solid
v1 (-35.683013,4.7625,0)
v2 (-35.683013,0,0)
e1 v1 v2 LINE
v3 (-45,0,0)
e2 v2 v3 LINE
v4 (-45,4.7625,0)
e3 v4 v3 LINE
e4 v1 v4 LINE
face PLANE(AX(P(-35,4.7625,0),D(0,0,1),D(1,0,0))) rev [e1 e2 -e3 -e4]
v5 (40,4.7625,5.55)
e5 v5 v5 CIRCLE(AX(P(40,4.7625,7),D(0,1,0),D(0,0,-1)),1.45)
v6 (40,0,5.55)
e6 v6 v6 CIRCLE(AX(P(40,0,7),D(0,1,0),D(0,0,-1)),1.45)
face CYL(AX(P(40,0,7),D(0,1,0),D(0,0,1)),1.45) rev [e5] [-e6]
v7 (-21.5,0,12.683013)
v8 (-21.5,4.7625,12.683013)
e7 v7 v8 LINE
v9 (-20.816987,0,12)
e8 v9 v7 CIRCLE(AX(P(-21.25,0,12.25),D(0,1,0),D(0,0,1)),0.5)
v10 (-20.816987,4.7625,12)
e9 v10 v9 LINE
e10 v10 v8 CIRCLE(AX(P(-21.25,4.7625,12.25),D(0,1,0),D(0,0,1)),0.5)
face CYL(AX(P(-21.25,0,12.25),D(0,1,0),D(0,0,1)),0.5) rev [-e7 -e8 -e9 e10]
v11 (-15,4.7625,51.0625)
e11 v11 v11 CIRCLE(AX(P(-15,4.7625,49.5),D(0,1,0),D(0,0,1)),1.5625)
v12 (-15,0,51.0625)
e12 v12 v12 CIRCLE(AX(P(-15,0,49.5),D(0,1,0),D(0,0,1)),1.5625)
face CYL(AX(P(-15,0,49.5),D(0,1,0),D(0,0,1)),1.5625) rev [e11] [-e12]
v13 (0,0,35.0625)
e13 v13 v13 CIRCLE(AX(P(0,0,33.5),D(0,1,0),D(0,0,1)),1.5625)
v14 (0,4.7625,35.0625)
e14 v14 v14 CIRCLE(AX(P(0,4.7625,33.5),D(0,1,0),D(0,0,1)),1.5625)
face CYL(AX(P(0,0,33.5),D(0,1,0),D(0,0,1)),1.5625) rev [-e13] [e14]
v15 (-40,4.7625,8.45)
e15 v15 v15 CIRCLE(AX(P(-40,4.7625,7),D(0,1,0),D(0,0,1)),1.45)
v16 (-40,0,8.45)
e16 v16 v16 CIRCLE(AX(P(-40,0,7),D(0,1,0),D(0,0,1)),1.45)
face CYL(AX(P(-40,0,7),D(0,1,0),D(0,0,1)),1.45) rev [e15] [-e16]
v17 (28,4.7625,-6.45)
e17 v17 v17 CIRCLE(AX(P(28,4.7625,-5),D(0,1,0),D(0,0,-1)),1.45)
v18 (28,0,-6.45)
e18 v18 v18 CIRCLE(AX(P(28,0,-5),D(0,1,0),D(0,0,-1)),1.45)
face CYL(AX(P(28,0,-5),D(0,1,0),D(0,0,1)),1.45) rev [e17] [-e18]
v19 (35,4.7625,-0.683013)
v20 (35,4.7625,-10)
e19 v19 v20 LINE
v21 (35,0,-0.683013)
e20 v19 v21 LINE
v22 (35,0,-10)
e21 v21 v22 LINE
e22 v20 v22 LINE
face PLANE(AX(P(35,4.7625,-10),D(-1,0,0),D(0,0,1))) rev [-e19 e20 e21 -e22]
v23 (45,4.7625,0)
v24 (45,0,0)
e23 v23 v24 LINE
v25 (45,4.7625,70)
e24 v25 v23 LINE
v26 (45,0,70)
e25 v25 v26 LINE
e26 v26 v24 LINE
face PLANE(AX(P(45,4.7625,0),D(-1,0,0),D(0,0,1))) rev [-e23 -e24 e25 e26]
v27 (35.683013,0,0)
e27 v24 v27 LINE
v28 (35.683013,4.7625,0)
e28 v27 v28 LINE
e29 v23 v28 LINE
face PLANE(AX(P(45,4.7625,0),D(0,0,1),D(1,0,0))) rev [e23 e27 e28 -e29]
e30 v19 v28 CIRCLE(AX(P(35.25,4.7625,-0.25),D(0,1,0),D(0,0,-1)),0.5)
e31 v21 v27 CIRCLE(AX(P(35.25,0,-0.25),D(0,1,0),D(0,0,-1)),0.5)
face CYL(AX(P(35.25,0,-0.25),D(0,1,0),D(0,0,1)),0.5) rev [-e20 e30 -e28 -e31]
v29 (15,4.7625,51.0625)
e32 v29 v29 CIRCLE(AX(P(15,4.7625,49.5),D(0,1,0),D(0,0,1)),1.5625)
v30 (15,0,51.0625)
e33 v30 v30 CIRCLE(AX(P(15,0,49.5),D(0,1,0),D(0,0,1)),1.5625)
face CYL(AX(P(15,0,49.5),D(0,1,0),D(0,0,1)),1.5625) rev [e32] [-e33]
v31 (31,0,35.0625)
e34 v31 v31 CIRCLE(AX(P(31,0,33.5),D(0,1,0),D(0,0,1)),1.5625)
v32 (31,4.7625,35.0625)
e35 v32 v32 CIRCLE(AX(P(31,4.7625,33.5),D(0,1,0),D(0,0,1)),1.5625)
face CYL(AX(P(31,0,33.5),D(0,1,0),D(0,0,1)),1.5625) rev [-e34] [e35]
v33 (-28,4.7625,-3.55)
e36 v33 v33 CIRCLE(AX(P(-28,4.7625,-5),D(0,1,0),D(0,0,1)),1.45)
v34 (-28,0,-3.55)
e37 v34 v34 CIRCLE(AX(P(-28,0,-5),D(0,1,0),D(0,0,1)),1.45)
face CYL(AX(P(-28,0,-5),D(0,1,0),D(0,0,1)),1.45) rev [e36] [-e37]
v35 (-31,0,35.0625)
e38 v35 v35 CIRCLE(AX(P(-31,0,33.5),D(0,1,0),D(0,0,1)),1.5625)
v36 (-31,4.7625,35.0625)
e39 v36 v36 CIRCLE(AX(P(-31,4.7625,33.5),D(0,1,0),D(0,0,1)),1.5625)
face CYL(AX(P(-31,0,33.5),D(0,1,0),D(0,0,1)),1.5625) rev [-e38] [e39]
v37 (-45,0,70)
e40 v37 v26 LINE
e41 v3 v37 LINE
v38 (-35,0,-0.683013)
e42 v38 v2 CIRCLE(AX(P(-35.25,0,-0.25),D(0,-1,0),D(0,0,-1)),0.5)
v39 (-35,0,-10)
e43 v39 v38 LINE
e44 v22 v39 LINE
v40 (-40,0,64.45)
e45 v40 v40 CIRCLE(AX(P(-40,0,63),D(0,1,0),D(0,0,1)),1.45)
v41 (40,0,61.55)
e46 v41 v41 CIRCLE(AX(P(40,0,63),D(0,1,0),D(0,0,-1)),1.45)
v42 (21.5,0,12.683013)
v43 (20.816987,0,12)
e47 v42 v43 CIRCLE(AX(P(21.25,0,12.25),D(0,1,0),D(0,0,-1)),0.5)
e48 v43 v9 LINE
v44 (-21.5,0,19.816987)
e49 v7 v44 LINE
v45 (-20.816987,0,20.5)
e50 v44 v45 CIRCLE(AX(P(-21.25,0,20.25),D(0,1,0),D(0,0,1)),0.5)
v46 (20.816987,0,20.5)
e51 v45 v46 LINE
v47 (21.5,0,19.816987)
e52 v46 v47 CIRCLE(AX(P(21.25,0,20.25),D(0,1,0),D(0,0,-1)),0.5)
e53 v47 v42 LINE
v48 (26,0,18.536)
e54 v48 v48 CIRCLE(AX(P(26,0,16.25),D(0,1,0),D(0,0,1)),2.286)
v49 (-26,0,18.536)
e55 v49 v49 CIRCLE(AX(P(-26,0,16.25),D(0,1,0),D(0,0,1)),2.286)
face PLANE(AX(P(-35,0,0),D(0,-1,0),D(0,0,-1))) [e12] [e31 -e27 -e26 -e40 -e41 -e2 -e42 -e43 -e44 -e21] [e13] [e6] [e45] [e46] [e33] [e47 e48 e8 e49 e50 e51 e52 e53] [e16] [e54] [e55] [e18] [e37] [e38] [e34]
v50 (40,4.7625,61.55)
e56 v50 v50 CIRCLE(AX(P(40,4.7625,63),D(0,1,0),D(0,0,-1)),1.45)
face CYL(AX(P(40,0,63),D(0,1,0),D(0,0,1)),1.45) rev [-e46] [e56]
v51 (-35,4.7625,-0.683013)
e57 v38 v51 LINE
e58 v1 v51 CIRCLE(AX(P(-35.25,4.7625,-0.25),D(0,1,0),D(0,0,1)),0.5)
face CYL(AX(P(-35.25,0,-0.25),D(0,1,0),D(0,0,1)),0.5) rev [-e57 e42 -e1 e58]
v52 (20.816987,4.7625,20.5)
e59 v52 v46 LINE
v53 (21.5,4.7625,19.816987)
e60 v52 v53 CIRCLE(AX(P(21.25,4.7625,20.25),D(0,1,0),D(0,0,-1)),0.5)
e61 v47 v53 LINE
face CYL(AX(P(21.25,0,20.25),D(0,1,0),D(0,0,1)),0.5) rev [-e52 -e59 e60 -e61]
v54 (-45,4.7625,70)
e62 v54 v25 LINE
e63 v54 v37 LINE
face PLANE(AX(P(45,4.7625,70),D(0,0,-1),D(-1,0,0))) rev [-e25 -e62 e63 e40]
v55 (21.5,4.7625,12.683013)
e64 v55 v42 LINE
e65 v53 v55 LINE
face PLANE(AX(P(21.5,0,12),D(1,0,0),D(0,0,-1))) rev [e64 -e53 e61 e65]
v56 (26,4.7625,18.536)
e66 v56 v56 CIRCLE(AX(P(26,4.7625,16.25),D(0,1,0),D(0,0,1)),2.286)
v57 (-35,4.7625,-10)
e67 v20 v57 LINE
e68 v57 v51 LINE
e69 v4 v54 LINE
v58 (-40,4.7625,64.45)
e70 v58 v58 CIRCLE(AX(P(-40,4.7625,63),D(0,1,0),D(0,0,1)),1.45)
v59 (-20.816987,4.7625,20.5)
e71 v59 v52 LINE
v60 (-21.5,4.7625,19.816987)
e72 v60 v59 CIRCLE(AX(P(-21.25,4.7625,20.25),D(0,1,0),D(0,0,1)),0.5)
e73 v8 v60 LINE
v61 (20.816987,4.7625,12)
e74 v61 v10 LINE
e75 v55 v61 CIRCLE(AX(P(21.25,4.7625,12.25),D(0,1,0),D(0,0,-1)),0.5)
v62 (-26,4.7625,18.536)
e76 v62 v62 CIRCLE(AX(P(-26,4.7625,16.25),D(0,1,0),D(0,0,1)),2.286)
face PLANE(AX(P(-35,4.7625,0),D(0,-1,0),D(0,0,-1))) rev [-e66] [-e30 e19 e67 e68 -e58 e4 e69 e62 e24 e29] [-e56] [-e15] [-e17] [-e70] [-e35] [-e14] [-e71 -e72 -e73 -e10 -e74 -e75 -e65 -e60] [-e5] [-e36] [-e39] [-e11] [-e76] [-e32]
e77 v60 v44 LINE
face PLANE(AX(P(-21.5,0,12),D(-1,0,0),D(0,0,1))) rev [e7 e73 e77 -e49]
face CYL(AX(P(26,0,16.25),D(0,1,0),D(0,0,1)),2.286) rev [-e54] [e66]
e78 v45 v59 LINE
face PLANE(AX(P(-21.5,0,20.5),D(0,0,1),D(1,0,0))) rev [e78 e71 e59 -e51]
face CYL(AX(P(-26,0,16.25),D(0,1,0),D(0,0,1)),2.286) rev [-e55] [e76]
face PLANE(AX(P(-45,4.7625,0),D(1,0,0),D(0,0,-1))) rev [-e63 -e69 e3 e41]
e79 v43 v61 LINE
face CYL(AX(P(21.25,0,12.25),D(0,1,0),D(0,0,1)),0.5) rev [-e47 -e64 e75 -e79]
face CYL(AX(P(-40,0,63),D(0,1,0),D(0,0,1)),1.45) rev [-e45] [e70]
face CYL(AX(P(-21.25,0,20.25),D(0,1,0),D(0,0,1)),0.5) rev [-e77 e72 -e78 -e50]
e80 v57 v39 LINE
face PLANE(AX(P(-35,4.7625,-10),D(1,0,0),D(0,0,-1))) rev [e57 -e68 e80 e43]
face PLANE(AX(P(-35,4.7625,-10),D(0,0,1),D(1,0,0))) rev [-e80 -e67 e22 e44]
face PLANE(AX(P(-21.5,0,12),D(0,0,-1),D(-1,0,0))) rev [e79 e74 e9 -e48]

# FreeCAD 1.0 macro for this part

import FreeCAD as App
import Part
import Sketcher
from FreeCAD import Vector
Q = App.Units.Quantity

doc = App.newDocument("Part")
body = doc.addObject("PartDesign::Body", "Body")

# Sketch on XZ plane
sketch1 = doc.addObject("Sketcher::SketchObject", "Sketch")
body.addObject(sketch1)
sketch1.AttachmentSupport = (doc.XZ_Plane, [""])
sketch1.MapMode = "FlatFace"
sketch1.addGeometry(Part.LineSegment(Vector(-35, 0, 0), Vector(-45, 0, 0)), False)
sketch1.addGeometry(Part.LineSegment(Vector(-45, 0, 0), Vector(-45, 70, 0)), False)
sketch1.addGeometry(Part.LineSegment(Vector(-45, 70, 0), Vector(45, 70, 0)), False)
sketch1.addGeometry(Part.LineSegment(Vector(45, 70, 0), Vector(45, 0, 0)), False)
sketch1.addGeometry(Part.LineSegment(Vector(45, 0, 0), Vector(35, 0, 0)), False)
sketch1.addGeometry(Part.LineSegment(Vector(35, 0, 0), Vector(35, -10, 0)), False)
sketch1.addGeometry(Part.LineSegment(Vector(35, -10, 0), Vector(-35, -10, 0)), False)
sketch1.addGeometry(Part.LineSegment(Vector(-35, -10, 0), Vector(-35, 0, 0)), False)
sketch1.addConstraint(Sketcher.Constraint("Coincident", 0, 2, 1, 1))
sketch1.addConstraint(Sketcher.Constraint("Coincident", 1, 2, 2, 1))
sketch1.addConstraint(Sketcher.Constraint("Coincident", 2, 2, 3, 1))
sketch1.addConstraint(Sketcher.Constraint("Coincident", 3, 2, 4, 1))
sketch1.addConstraint(Sketcher.Constraint("Coincident", 4, 2, 5, 1))
sketch1.addConstraint(Sketcher.Constraint("Coincident", 5, 2, 6, 1))
sketch1.addConstraint(Sketcher.Constraint("Coincident", 6, 2, 7, 1))
sketch1.addConstraint(Sketcher.Constraint("Coincident", 7, 2, 0, 1))
sketch1.addConstraint(Sketcher.Constraint("Horizontal", 0))
sketch1.addConstraint(Sketcher.Constraint("Vertical", 1))
sketch1.addConstraint(Sketcher.Constraint("Horizontal", 2))
sketch1.addConstraint(Sketcher.Constraint("Vertical", 3))
sketch1.addConstraint(Sketcher.Constraint("Horizontal", 4))
sketch1.addConstraint(Sketcher.Constraint("Vertical", 5))
sketch1.addConstraint(Sketcher.Constraint("Horizontal", 6))
sketch1.addConstraint(Sketcher.Constraint("Vertical", 7))
sketch1.addConstraint(Sketcher.Constraint("Symmetric", 0, 2, 3, 2, -1, 1))
sketch1.addConstraint(Sketcher.Constraint("Symmetric", 4, 2, 7, 2, -2))
sketch1.addConstraint(Sketcher.Constraint("Equal", 6, 1))
sketch1.addConstraint(Sketcher.Constraint("Equal", 4, 5))
sketch1.addConstraint(Sketcher.Constraint("DistanceX", 0, 2, 0, 1, Q("10 mm")))
sketch1.addConstraint(Sketcher.Constraint("DistanceX", 2, 1, 2, 2, Q("90 mm")))
pad1 = doc.addObject("PartDesign::Pad", "Pad")
body.addObject(pad1)
pad1.Profile = sketch1
pad1.Length = 4.7625
pad1.Reversed = True

# Sketch on XZ plane
sketch2 = doc.addObject("Sketcher::SketchObject", "Sketch001")
body.addObject(sketch2)
sketch2.AttachmentSupport = (doc.XZ_Plane, [""])
sketch2.MapMode = "FlatFace"
sketch2.AttachmentOffset = App.Placement(Vector(0, 0, -4.7625), App.Rotation())
sketch2.addGeometry(Part.Circle(Vector(-31, 33.5, 0), Vector(0, 0, 1), 1.5625), False)
sketch2.addGeometry(Part.Circle(Vector(0, 33.5, 0), Vector(0, 0, 1), 1.5625), False)
sketch2.addGeometry(Part.Circle(Vector(31, 33.5, 0), Vector(0, 0, 1), 1.5625), False)
sketch2.addGeometry(Part.Circle(Vector(15, 49.5, 0), Vector(0, 0, 1), 1.5625), False)
sketch2.addGeometry(Part.Circle(Vector(-15, 49.5, 0), Vector(0, 0, 1), 1.5625), False)
sketch2.addConstraint(Sketcher.Constraint("Equal", 0, 1))
sketch2.addConstraint(Sketcher.Constraint("Equal", 1, 2))
sketch2.addConstraint(Sketcher.Constraint("Equal", 2, 3))
sketch2.addConstraint(Sketcher.Constraint("Equal", 3, 4))
sketch2.addConstraint(Sketcher.Constraint("Symmetric", 0, 3, 2, 3, -2))
sketch2.addConstraint(Sketcher.Constraint("Symmetric", 3, 3, 4, 3, -2))
sketch2.addConstraint(Sketcher.Constraint("PointOnObject", 1, 3, -2))
sketch2.addConstraint(Sketcher.Constraint("Horizontal", 0, 3, 1, 3))
sketch2.addConstraint(Sketcher.Constraint("Diameter", 0, Q("3.125 mm")))
sketch2.addConstraint(Sketcher.Constraint("DistanceX", 0, 3, -1, 1, Q("31 mm")))
sketch2.addConstraint(Sketcher.Constraint("DistanceX", -1, 1, 3, 3, Q("15 mm")))
sketch2.addConstraint(Sketcher.Constraint("DistanceY", 1, 3, 3, 3, Q("16 mm")))
sketch2.addConstraint(Sketcher.Constraint("DistanceY", -1, 1, 0, 3, Q("33.5 mm")))
pocket1 = doc.addObject("PartDesign::Pocket", "Pocket")
body.addObject(pocket1)
pocket1.Profile = sketch2
pocket1.Type = "ThroughAll"
pocket1.Reversed = True

# Sketch on XZ plane
sketch3 = doc.addObject("Sketcher::SketchObject", "Sketch002")
body.addObject(sketch3)
sketch3.AttachmentSupport = (doc.XZ_Plane, [""])
sketch3.MapMode = "FlatFace"
sketch3.AttachmentOffset = App.Placement(Vector(0, 0, -4.7625), App.Rotation())
sketch3.addGeometry(Part.Circle(Vector(-26, 16.25, 0), Vector(0, 0, 1), 2.286), False)
sketch3.addGeometry(Part.Circle(Vector(26, 16.25, 0), Vector(0, 0, 1), 2.286), False)
sketch3.addGeometry(Part.LineSegment(Vector(-21.5, 12, 0), Vector(-21.5, 20.5, 0)), False)
sketch3.addGeometry(Part.LineSegment(Vector(-21.5, 20.5, 0), Vector(21.5, 20.5, 0)), False)
sketch3.addGeometry(Part.LineSegment(Vector(21.5, 20.5, 0), Vector(21.5, 12, 0)), False)
sketch3.addGeometry(Part.LineSegment(Vector(21.5, 12, 0), Vector(-21.5, 12, 0)), False)
sketch3.addConstraint(Sketcher.Constraint("Coincident", 2, 2, 3, 1))
sketch3.addConstraint(Sketcher.Constraint("Coincident", 3, 2, 4, 1))
sketch3.addConstraint(Sketcher.Constraint("Coincident", 4, 2, 5, 1))
sketch3.addConstraint(Sketcher.Constraint("Coincident", 5, 2, 2, 1))
sketch3.addConstraint(Sketcher.Constraint("Vertical", 2))
sketch3.addConstraint(Sketcher.Constraint("Horizontal", 3))
sketch3.addConstraint(Sketcher.Constraint("Vertical", 4))
sketch3.addConstraint(Sketcher.Constraint("Horizontal", 5))
sketch3.addConstraint(Sketcher.Constraint("Equal", 0, 1))
sketch3.addConstraint(Sketcher.Constraint("Symmetric", 0, 3, 1, 3, -2))
sketch3.addConstraint(Sketcher.Constraint("DistanceX", 3, 1, 3, 2, Q("43 mm")))
sketch3.addConstraint(Sketcher.Constraint("Diameter", 0, Q("4.572 mm")))
sketch3.addConstraint(Sketcher.Constraint("DistanceY", 2, 1, 2, 2, Q("8.5 mm")))
sketch3.addConstraint(Sketcher.Constraint("DistanceX", 0, 3, -1, 1, Q("26 mm")))
sketch3.addConstraint(Sketcher.Constraint("DistanceY", -1, 1, 4, 2, Q("12 mm")))
sketch3.addConstraint(Sketcher.Constraint("DistanceX", 2, 2, -1, 1, Q("21.5 mm")))
sketch3.addConstraint(Sketcher.Constraint("DistanceY", -1, 1, 0, 3, Q("16.25 mm")))
pocket2 = doc.addObject("PartDesign::Pocket", "Pocket001")
body.addObject(pocket2)
pocket2.Profile = sketch3
pocket2.Type = "ThroughAll"
pocket2.Reversed = True

# Sketch on XZ plane
sketch4 = doc.addObject("Sketcher::SketchObject", "Sketch003")
body.addObject(sketch4)
sketch4.AttachmentSupport = (doc.XZ_Plane, [""])
sketch4.MapMode = "FlatFace"
sketch4.AttachmentOffset = App.Placement(Vector(0, 0, -4.7625), App.Rotation())
sketch4.addGeometry(Part.Circle(Vector(-28, -5, 0), Vector(0, 0, 1), 1.45), False)
sketch4.addGeometry(Part.Circle(Vector(-40, 7, 0), Vector(0, 0, 1), 1.45), False)
sketch4.addGeometry(Part.Circle(Vector(-40, 63, 0), Vector(0, 0, 1), 1.45), False)
sketch4.addGeometry(Part.Circle(Vector(40, 63, 0), Vector(0, 0, 1), 1.45), False)
sketch4.addGeometry(Part.Circle(Vector(40, 7, 0), Vector(0, 0, 1), 1.45), False)
sketch4.addGeometry(Part.Circle(Vector(28, -5, 0), Vector(0, 0, 1), 1.45), False)
sketch4.addConstraint(Sketcher.Constraint("Equal", 0, 1))
sketch4.addConstraint(Sketcher.Constraint("Equal", 1, 2))
sketch4.addConstraint(Sketcher.Constraint("Equal", 2, 3))
sketch4.addConstraint(Sketcher.Constraint("Equal", 3, 4))
sketch4.addConstraint(Sketcher.Constraint("Equal", 4, 5))
sketch4.addConstraint(Sketcher.Constraint("Symmetric", 2, 3, 3, 3, -2))
sketch4.addConstraint(Sketcher.Constraint("Symmetric", 1, 3, 4, 3, -2))
sketch4.addConstraint(Sketcher.Constraint("Symmetric", 0, 3, 5, 3, -2))
sketch4.addConstraint(Sketcher.Constraint("Vertical", 1, 3, 2, 3))
sketch4.addConstraint(Sketcher.Constraint("Diameter", 0, Q("2.9 mm")))
sketch4.addConstraint(Sketcher.Constraint("DistanceX", 0, 3, -1, 1, Q("28 mm")))
sketch4.addConstraint(Sketcher.Constraint("DistanceY", 0, 3, -1, 1, Q("5 mm")))
sketch4.addConstraint(Sketcher.Constraint("DistanceX", 1, 3, -1, 1, Q("40 mm")))
sketch4.addConstraint(Sketcher.Constraint("DistanceY", -1, 1, 1, 3, Q("7 mm")))
sketch4.addConstraint(Sketcher.Constraint("DistanceY", -1, 1, 2, 3, Q("63 mm")))
pocket3 = doc.addObject("PartDesign::Pocket", "Pocket002")
body.addObject(pocket3)
pocket3.Profile = sketch4
pocket3.Type = "ThroughAll"
pocket3.Reversed = True

# Sketch on XZ plane
sketch5 = doc.addObject("Sketcher::SketchObject", "Sketch004")
body.addObject(sketch5)
sketch5.AttachmentSupport = (doc.XZ_Plane, [""])
sketch5.MapMode = "FlatFace"
sketch5.AttachmentOffset = App.Placement(Vector(0, 0, -4.7625), App.Rotation())
sketch5.addGeometry(Part.Circle(Vector(-35.25, -0.25, 0), Vector(0, 0, 1), 0.5), False)
sketch5.addGeometry(Part.Circle(Vector(-21.25, 12.25, 0), Vector(0, 0, 1), 0.5), False)
sketch5.addGeometry(Part.Circle(Vector(-21.25, 20.25, 0), Vector(0, 0, 1), 0.5), False)
sketch5.addGeometry(Part.Circle(Vector(35.25, -0.25, 0), Vector(0, 0, 1), 0.5), False)
sketch5.addGeometry(Part.Circle(Vector(21.25, 12.25, 0), Vector(0, 0, 1), 0.5), False)
sketch5.addGeometry(Part.Circle(Vector(21.25, 20.25, 0), Vector(0, 0, 1), 0.5), False)
sketch5.addConstraint(Sketcher.Constraint("Equal", 0, 1))
sketch5.addConstraint(Sketcher.Constraint("Equal", 1, 2))
sketch5.addConstraint(Sketcher.Constraint("Equal", 2, 3))
sketch5.addConstraint(Sketcher.Constraint("Equal", 3, 4))
sketch5.addConstraint(Sketcher.Constraint("Equal", 4, 5))
sketch5.addConstraint(Sketcher.Constraint("Symmetric", 0, 3, 3, 3, -2))
sketch5.addConstraint(Sketcher.Constraint("Symmetric", 1, 3, 4, 3, -2))
sketch5.addConstraint(Sketcher.Constraint("Symmetric", 2, 3, 5, 3, -2))
sketch5.addConstraint(Sketcher.Constraint("Vertical", 1, 3, 2, 3))
sketch5.addConstraint(Sketcher.Constraint("Diameter", 0, Q("1 mm")))
sketch5.addConstraint(Sketcher.Constraint("DistanceX", 0, 3, 1, 3, Q("14 mm")))
sketch5.addConstraint(Sketcher.Constraint("DistanceY", 1, 3, 2, 3, Q("8 mm")))
sketch5.addConstraint(Sketcher.Constraint("DistanceY", 0, 3, 1, 3, Q("12.5 mm")))
sketch5.addConstraint(Sketcher.Constraint("DistanceX", 1, 3, 3, 3, Q("56.5 mm")))
sketch5.addConstraint(Sketcher.Constraint("DistanceY", 0, 3, -1, 1, Q("0.25 mm")))
pocket4 = doc.addObject("PartDesign::Pocket", "Pocket003")
body.addObject(pocket4)
pocket4.Profile = sketch5
pocket4.Type = "ThroughAll"
pocket4.Reversed = True

doc.recompute()
